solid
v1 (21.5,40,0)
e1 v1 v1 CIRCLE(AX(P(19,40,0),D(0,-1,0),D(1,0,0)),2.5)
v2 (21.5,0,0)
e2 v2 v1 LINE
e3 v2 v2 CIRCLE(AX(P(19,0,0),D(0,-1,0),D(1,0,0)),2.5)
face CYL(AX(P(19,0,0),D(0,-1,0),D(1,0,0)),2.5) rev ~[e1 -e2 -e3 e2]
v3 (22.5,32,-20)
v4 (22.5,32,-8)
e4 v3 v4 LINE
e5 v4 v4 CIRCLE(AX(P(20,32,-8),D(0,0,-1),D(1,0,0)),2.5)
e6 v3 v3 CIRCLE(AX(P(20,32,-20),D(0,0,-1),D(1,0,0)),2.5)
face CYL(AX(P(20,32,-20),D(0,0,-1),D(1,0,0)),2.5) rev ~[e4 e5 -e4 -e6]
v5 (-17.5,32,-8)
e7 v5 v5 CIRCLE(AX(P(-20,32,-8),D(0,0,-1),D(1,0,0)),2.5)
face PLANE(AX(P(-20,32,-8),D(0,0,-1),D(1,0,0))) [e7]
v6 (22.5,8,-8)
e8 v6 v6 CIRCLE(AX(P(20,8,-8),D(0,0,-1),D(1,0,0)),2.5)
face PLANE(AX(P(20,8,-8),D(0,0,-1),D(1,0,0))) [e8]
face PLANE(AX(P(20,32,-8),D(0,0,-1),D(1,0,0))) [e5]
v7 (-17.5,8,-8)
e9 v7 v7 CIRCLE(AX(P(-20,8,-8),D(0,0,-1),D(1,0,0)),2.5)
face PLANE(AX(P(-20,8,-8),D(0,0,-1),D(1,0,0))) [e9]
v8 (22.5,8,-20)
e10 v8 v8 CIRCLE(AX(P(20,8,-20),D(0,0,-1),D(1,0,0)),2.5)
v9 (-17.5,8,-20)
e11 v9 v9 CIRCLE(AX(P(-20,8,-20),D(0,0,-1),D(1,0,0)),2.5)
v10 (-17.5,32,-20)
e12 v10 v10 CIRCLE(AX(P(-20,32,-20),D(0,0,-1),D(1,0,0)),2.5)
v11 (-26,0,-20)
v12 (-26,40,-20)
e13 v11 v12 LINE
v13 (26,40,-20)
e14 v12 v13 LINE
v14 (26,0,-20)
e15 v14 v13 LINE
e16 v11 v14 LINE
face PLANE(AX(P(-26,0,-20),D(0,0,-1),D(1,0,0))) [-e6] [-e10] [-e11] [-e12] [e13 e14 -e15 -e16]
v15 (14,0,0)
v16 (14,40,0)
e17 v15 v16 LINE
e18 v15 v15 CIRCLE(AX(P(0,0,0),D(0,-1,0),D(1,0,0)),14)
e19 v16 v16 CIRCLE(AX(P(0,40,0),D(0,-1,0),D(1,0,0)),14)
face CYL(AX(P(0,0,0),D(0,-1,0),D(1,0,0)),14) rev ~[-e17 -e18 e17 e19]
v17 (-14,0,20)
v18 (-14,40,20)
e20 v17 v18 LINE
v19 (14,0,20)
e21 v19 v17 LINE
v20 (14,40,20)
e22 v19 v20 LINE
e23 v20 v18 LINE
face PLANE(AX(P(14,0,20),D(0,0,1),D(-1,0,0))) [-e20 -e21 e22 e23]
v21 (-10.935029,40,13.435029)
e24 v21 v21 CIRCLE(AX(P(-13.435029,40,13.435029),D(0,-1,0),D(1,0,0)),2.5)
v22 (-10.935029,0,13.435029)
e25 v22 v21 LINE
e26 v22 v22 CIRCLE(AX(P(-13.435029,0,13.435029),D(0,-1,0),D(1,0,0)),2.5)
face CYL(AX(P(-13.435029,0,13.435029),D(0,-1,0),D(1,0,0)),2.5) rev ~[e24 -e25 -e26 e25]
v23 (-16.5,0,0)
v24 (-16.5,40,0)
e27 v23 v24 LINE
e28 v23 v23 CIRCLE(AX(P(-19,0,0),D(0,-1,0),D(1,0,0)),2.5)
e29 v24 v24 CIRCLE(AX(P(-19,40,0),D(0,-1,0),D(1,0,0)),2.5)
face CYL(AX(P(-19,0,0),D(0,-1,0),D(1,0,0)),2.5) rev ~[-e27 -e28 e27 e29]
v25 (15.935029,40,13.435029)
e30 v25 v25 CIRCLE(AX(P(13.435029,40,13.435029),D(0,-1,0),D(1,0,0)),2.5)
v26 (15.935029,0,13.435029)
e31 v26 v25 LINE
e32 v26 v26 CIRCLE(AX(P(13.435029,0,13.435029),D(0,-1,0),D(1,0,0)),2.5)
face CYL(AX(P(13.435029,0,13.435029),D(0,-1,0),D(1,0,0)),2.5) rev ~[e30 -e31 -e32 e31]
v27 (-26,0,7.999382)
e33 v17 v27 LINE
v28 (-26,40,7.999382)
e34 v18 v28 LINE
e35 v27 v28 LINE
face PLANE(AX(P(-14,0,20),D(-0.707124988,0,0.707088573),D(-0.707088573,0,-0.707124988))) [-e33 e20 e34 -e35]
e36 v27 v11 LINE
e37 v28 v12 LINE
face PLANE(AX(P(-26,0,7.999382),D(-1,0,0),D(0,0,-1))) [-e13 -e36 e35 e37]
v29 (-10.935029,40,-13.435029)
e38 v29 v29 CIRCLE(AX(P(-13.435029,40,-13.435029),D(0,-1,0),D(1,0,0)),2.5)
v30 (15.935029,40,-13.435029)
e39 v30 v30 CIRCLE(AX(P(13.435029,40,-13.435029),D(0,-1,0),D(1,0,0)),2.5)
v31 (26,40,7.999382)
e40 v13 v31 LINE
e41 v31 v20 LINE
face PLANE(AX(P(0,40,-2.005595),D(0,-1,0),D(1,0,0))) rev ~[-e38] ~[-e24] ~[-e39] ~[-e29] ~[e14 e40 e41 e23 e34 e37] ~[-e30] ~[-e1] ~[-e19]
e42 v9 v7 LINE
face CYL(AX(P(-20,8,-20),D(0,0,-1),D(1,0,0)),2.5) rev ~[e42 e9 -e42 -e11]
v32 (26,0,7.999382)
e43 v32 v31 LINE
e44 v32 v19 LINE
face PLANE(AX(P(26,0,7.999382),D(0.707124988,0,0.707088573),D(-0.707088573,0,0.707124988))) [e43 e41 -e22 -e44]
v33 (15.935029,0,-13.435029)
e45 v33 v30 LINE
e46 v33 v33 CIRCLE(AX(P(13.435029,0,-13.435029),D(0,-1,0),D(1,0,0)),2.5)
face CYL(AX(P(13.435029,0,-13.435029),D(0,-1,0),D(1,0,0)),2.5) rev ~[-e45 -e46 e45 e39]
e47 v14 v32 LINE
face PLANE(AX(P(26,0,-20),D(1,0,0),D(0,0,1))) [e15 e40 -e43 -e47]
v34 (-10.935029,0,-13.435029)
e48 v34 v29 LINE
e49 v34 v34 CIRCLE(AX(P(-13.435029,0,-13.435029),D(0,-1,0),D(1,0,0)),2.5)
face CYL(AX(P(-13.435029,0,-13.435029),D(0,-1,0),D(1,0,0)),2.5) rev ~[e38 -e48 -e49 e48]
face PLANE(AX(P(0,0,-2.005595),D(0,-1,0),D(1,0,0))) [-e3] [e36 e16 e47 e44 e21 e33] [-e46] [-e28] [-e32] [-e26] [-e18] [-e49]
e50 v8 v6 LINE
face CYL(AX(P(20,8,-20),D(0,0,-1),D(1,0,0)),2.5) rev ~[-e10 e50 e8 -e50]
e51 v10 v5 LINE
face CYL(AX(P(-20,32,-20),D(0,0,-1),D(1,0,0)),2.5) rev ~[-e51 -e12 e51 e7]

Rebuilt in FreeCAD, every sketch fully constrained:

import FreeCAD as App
import Part
import Sketcher
from FreeCAD import Vector
Q = App.Units.Quantity


def add_polygon(sketch, points):
    """Adds a closed chain of lines whose ends are joined by coincident constraints."""
    first, n = sketch.GeometryCount, len(points)
    for a, b in zip(points, points[1:] + points[:1]):
        sketch.addGeometry(Part.LineSegment(App.Vector(*a, 0), App.Vector(*b, 0)), False)
    for i in range(n):
        sketch.addConstraint(Sketcher.Constraint("Coincident", first + i, 2, first + (i + 1) % n, 1))

doc = App.newDocument("Part")
body = doc.addObject("PartDesign::Body", "Body")

# Sketch on XZ plane
sketch1 = body.newObject("Sketcher::SketchObject", "Sketch")
sketch1.AttachmentSupport = (doc.getObject("XZ_Plane"), [""])
sketch1.MapMode = "FlatFace"
add_polygon(sketch1, [(14, 20), (-14, 20), (-26, 7.999382), (-26, -20), (26, -20), (26, 7.999382)])  # lines 0-5
sketch1.addGeometry(Part.Circle(Vector(-13.435029, -13.435029, 0), Vector(0, 0, 1), 2.5), False)  # 6
sketch1.addGeometry(Part.Circle(Vector(13.435029, -13.435029, 0), Vector(0, 0, 1), 2.5), False)  # 7
sketch1.addGeometry(Part.Circle(Vector(-19, 0, 0), Vector(0, 0, 1), 2.5), False)  # 8
sketch1.addGeometry(Part.Circle(Vector(-13.435029, 13.435029, 0), Vector(0, 0, 1), 2.5), False)  # 9
sketch1.addGeometry(Part.Circle(Vector(0, 0, 0), Vector(0, 0, 1), 14), False)  # 10
sketch1.addGeometry(Part.Circle(Vector(19, 0, 0), Vector(0, 0, 1), 2.5), False)  # 11
sketch1.addGeometry(Part.Circle(Vector(13.435029, 13.435029, 0), Vector(0, 0, 1), 2.5), False)  # 12
sketch1.addConstraint([
    Sketcher.Constraint("Horizontal", 0),
    Sketcher.Constraint("Vertical", 2),
    Sketcher.Constraint("Horizontal", 3),
    Sketcher.Constraint("Vertical", 4),
    Sketcher.Constraint("Coincident", 10, 3, -1, 1),
    Sketcher.Constraint("Equal", 6, 7),
    Sketcher.Constraint("Equal", 7, 8),
    Sketcher.Constraint("Equal", 8, 9),
    Sketcher.Constraint("Equal", 9, 11),
    Sketcher.Constraint("Equal", 11, 12),
    Sketcher.Constraint("Symmetric", 7, 3, 9, 3, -1, 1),
    Sketcher.Constraint("Symmetric", 8, 3, 11, 3, -1, 1),
    Sketcher.Constraint("Symmetric", 6, 3, 12, 3, -1, 1),
    Sketcher.Constraint("Symmetric", 6, 3, 7, 3, -2),
    Sketcher.Constraint("Symmetric", 1, 2, 4, 2, -2),
    Sketcher.Constraint("PointOnObject", 8, 3, -1),
    Sketcher.Constraint("Equal", 1, 5),
    Sketcher.Constraint("Diameter", 6, Q("5 mm")),
    Sketcher.Constraint("Diameter", 10, Q("28 mm")),
    Sketcher.Constraint("DistanceX", 0, 2, 0, 1, Q("28 mm")),
    Sketcher.Constraint("DistanceX", 3, 1, 3, 2, Q("52 mm")),
    Sketcher.Constraint("DistanceX", 8, 3, -1, 1, Q("19 mm")),
    Sketcher.Constraint("DistanceY", -1, 1, 0, 2, Q("20 mm")),
    Sketcher.Constraint("DistanceY", 2, 2, -1, 1, Q("20 mm")),
    Sketcher.Constraint("Distance", 1, Q("16.971 mm")),
    Sketcher.Constraint("DistanceX", 6, 3, -1, 1, Q("13.435029 mm")),
    Sketcher.Constraint("DistanceY", 6, 3, -1, 1, Q("13.435029 mm")),
])
pad1 = body.newObject("PartDesign::Pad", "Pad")
pad1.Profile = sketch1
pad1.Length = 40
pad1.Reversed = True

# Sketch on XY plane
sketch2 = body.newObject("Sketcher::SketchObject", "Sketch001")
sketch2.AttachmentSupport = (doc.getObject("XY_Plane"), [""])
sketch2.MapMode = "FlatFace"
sketch2.AttachmentOffset = App.Placement(Vector(0, 0, -20), App.Rotation())
sketch2.addGeometry([
    Part.Circle(Vector(20, 32, 0), Vector(0, 0, 1), 2.5),
    Part.Circle(Vector(-20, 32, 0), Vector(0, 0, 1), 2.5),
    Part.Circle(Vector(-20, 8, 0), Vector(0, 0, 1), 2.5),
    Part.Circle(Vector(20, 8, 0), Vector(0, 0, 1), 2.5),
], False)
sketch2.addConstraint([
    Sketcher.Constraint("Equal", 0, 1),
    Sketcher.Constraint("Equal", 1, 2),
    Sketcher.Constraint("Equal", 2, 3),
    Sketcher.Constraint("Symmetric", 0, 3, 1, 3, -2),
    Sketcher.Constraint("Symmetric", 2, 3, 3, 3, -2),
    Sketcher.Constraint("Vertical", 1, 3, 2, 3),
    Sketcher.Constraint("Diameter", 0, Q("5 mm")),
    Sketcher.Constraint("DistanceX", -1, 1, 0, 3, Q("20 mm")),
    Sketcher.Constraint("DistanceY", -1, 1, 0, 3, Q("32 mm")),
    Sketcher.Constraint("DistanceY", -1, 1, 2, 3, Q("8 mm")),
])
pocket1 = body.newObject("PartDesign::Pocket", "Pocket")
pocket1.Profile = sketch2
pocket1.Length = 12
pocket1.Reversed = True

doc.recompute()
